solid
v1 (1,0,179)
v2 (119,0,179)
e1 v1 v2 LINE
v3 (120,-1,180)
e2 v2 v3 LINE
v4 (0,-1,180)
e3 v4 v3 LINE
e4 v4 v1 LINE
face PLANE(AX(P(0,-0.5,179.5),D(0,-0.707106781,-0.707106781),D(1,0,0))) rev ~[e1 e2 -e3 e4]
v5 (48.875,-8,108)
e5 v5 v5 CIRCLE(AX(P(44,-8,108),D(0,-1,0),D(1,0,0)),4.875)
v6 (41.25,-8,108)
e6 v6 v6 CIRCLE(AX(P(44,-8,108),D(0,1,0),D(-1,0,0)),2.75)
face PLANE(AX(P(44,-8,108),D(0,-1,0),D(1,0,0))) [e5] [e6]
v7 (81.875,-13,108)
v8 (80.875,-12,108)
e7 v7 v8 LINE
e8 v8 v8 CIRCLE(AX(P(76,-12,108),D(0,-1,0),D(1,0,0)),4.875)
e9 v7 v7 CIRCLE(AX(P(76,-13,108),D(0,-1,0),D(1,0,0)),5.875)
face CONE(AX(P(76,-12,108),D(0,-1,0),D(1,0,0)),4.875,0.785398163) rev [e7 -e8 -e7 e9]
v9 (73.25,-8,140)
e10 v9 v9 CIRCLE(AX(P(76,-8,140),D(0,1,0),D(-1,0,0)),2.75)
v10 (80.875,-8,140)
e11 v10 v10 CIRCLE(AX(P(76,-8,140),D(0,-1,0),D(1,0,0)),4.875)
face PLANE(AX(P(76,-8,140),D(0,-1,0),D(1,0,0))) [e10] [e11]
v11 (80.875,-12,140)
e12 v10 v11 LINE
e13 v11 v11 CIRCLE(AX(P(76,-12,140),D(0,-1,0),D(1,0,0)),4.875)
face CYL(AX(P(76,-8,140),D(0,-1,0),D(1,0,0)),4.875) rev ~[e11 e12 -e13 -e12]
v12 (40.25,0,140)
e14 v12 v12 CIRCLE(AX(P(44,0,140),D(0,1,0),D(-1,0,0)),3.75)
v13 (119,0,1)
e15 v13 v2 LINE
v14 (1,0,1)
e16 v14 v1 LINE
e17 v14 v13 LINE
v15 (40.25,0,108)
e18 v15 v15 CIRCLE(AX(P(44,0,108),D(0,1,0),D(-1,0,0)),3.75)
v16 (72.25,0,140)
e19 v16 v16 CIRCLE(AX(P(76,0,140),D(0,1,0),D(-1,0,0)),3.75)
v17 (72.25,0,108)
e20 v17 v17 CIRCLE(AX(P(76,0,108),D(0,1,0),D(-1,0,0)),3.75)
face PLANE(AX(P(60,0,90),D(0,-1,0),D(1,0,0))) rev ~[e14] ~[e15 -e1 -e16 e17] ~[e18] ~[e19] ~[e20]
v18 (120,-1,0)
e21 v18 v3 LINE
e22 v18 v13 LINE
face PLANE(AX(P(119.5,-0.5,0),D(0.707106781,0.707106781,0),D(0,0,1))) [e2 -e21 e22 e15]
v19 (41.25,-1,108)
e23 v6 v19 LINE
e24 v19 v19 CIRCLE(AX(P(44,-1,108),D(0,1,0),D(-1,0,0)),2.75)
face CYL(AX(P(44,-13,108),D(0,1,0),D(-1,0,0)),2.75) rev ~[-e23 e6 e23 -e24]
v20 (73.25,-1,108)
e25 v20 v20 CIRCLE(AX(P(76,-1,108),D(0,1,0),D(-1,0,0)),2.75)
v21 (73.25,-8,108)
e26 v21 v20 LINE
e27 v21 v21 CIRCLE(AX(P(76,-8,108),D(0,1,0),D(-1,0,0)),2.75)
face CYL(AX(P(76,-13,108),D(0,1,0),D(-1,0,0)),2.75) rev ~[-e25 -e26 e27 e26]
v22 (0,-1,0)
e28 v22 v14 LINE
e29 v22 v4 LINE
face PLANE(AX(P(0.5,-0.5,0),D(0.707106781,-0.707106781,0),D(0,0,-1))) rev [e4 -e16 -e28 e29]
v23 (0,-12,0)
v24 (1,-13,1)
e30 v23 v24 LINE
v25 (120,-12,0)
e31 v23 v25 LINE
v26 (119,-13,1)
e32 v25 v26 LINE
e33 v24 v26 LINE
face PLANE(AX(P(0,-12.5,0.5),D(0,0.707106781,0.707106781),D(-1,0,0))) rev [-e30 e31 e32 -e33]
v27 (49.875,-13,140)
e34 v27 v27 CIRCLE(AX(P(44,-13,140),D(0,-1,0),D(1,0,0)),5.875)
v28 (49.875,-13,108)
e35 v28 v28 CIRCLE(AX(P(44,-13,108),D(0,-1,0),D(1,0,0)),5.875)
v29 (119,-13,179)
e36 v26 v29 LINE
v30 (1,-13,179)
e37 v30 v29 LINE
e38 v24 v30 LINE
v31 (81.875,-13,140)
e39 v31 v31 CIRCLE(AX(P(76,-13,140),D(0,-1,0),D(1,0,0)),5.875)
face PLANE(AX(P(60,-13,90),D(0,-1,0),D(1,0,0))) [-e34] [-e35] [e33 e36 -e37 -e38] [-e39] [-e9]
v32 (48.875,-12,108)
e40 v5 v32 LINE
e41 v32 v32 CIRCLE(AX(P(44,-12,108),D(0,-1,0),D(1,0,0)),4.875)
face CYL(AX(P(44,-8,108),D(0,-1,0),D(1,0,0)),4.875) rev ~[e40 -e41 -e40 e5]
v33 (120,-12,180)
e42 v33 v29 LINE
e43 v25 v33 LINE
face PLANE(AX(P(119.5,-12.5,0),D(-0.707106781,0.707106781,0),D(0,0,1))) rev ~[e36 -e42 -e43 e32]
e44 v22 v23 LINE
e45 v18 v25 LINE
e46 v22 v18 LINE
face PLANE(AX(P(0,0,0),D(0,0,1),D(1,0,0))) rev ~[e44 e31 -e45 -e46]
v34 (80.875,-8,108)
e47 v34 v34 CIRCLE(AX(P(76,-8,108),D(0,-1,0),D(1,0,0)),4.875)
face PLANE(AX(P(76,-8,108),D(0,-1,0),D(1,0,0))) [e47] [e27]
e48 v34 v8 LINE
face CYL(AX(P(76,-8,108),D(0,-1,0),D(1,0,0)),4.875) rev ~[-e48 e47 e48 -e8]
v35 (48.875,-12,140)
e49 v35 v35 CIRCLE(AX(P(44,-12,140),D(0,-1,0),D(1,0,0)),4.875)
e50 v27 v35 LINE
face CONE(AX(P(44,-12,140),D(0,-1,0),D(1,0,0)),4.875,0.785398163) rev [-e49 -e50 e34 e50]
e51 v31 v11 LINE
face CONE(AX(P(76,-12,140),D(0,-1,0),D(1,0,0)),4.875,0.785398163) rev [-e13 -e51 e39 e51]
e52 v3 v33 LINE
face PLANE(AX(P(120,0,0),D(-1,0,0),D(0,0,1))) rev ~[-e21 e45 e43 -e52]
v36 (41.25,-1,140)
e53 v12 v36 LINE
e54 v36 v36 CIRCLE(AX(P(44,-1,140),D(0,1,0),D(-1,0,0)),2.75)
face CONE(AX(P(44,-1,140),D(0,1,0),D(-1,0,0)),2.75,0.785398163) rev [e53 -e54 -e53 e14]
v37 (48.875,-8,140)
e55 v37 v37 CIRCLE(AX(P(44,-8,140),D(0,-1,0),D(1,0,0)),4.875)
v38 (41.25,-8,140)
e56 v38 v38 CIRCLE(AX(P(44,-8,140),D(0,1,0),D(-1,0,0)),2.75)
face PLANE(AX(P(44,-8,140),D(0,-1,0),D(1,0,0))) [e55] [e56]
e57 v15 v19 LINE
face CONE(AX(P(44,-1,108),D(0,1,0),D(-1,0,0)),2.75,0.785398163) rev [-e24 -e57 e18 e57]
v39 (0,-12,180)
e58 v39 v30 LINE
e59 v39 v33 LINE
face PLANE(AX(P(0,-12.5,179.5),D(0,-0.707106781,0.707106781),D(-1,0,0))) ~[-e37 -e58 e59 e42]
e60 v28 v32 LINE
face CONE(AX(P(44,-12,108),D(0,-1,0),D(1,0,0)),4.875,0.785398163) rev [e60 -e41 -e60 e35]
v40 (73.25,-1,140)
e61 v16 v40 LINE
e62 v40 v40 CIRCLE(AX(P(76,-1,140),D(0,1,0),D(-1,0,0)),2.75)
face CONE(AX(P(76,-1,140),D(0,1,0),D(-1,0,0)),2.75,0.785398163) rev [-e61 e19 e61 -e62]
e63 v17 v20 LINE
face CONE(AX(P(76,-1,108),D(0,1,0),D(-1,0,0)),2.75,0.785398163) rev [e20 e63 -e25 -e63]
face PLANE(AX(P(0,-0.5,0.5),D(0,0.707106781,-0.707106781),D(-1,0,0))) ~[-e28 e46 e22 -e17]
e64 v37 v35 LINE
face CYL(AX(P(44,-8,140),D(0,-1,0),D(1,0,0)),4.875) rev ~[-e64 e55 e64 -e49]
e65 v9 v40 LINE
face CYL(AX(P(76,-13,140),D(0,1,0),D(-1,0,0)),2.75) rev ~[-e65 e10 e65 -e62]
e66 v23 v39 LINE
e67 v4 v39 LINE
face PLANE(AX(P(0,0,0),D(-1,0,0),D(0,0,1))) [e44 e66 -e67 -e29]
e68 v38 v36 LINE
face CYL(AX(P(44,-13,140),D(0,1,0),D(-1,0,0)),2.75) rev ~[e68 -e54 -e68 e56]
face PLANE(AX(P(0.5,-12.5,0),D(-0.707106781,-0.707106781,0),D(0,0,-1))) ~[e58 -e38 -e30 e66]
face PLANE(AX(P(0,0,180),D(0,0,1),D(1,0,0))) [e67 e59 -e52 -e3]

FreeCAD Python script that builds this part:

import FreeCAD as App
import Part
import Sketcher


def edges_at(feature, points):
    """Names of the edges that pass closest to the given points."""
    edges = feature.Shape.Edges
    near = lambda p: min(range(len(edges)), key=lambda i: edges[i].distToShape(Part.Vertex(*p))[0])
    return sorted({f"Edge{near(p) + 1}" for p in points})

doc = App.newDocument("Part")
params = doc.addObject("Spreadsheet::Sheet", "Params")
for row, (alias, value) in enumerate([
    ("sketch1_width", "120 mm"),
    ("sketch1_height", "180 mm"),
    ("pad1_length", "13 mm"),
    ("sketch2_diameter", "5.5 mm"),
    ("hole_diameter", "5.5 mm"),
    ("hole_cbore_diameter", "9.75 mm"),
    ("hole_cbore_depth", "5 mm"),
    ("chamfer_size", "1 mm"),
    ("chamfer2_size", "1 mm"),
], start=1):
    params.set(f"A{row}", alias)
    params.set(f"B{row}", "=" + value)
    params.setAlias(f"B{row}", alias)

body = doc.addObject("PartDesign::Body", "Body")

# Sketch on XZ plane
sketch1 = body.newObject("Sketcher::SketchObject", "Sketch")
sketch1.AttachmentSupport = (doc.getObject("XZ_Plane"), [""])
sketch1.MapMode = "FlatFace"
sketch1.addGeometry([
    Part.LineSegment(App.Vector(0, 180, 0), App.Vector(0, 0, 0)),
    Part.LineSegment(App.Vector(0, 0, 0), App.Vector(120, 0, 0)),
    Part.LineSegment(App.Vector(120, 0, 0), App.Vector(120, 180, 0)),
    Part.LineSegment(App.Vector(120, 180, 0), App.Vector(0, 180, 0)),
], False)
sketch1.addConstraint([
    Sketcher.Constraint("Coincident", 0, 2, 1, 1),
    Sketcher.Constraint("Coincident", 1, 2, 2, 1),
    Sketcher.Constraint("Coincident", 2, 2, 3, 1),
    Sketcher.Constraint("Coincident", 3, 2, 0, 1),
    Sketcher.Constraint("Vertical", 0),
    Sketcher.Constraint("Horizontal", 1),
    Sketcher.Constraint("Vertical", 2),
    Sketcher.Constraint("Horizontal", 3),
    Sketcher.Constraint("Coincident", 0, 2, -1, 1),
    Sketcher.Constraint("DistanceX", 1, 1, 1, 2, 120.0),
    Sketcher.Constraint("DistanceY", 0, 2, 0, 1, 180.0),
])
sketch1.setExpression("Constraints[9]", "Params.sketch1_width")
sketch1.setExpression("Constraints[10]", "Params.sketch1_height")
pad1 = body.newObject("PartDesign::Pad", "Pad")
pad1.Profile = sketch1
pad1.setExpression("Length", "Params.pad1_length")

# Sketch on XZ plane
sketch2 = body.newObject("Sketcher::SketchObject", "Sketch001")
sketch2.AttachmentSupport = (doc.getObject("XZ_Plane"), [""])
sketch2.MapMode = "FlatFace"
sketch2.AttachmentOffset = App.Placement(App.Vector(0, 0, 13), App.Rotation())
sketch2.addGeometry([
    Part.Circle(App.Vector(44, 140, 0), App.Vector(0, 0, 1), 2.8),
    Part.Circle(App.Vector(44, 108, 0), App.Vector(0, 0, 1), 2.8),
    Part.Circle(App.Vector(76, 140, 0), App.Vector(0, 0, 1), 2.8),
    Part.Circle(App.Vector(76, 108, 0), App.Vector(0, 0, 1), 2.8),
], False)
sketch2.addConstraint([
    Sketcher.Constraint("Equal", 0, 1),
    Sketcher.Constraint("Equal", 1, 2),
    Sketcher.Constraint("Equal", 2, 3),
    Sketcher.Constraint("Horizontal", 0, 3, 2, 3),
    Sketcher.Constraint("Horizontal", 1, 3, 3, 3),
    Sketcher.Constraint("Vertical", 0, 3, 1, 3),
    Sketcher.Constraint("Vertical", 2, 3, 3, 3),
    Sketcher.Constraint("Diameter", 0, 5.5),
    Sketcher.Constraint("DistanceX", -1, 1, 0, 3, 44.0),
    Sketcher.Constraint("DistanceY", -1, 1, 0, 3, 140.0),
    Sketcher.Constraint("DistanceY", -1, 1, 1, 3, 108.0),
    Sketcher.Constraint("DistanceX", -1, 1, 2, 3, 76.0),
])
sketch2.setExpression("Constraints[7]", "Params.sketch2_diameter")
doc.recompute()
hole = body.newObject("PartDesign::Hole", "Hole")
hole.Profile = sketch2
hole.ThreadType = "None"
hole.setExpression("Diameter", "Params.hole_diameter")
hole.DepthType = "ThroughAll"
hole.HoleCutType = "Counterbore"
hole.setExpression("HoleCutDiameter", "Params.hole_cbore_diameter")
hole.setExpression("HoleCutDepth", "Params.hole_cbore_depth")
doc.recompute()

chamfer = body.newObject("PartDesign::Chamfer", "Chamfer")
chamfer.Base = (hole, edges_at(hole, [
    (60, -13, 180),
    (0, -13, 90),
    (60, -13, 0),
    (120, -13, 90),
    (39.125, -13, 108),
    (71.125, -13, 108),
    (39.125, -13, 140),
    (71.125, -13, 140),
]))
chamfer.setExpression("Size", "Params.chamfer_size")
doc.recompute()

chamfer2 = body.newObject("PartDesign::Chamfer", "Chamfer001")
chamfer2.Base = (chamfer, edges_at(chamfer, [
    (0, 0, 90),
    (60, 0, 180),
    (60, 0, 0),
    (120, 0, 90),
    (46.75, 0, 108),
    (78.75, 0, 108),
    (46.75, 0, 140),
    (78.75, 0, 140),
]))
chamfer2.setExpression("Size", "Params.chamfer2_size")

doc.recompute()
